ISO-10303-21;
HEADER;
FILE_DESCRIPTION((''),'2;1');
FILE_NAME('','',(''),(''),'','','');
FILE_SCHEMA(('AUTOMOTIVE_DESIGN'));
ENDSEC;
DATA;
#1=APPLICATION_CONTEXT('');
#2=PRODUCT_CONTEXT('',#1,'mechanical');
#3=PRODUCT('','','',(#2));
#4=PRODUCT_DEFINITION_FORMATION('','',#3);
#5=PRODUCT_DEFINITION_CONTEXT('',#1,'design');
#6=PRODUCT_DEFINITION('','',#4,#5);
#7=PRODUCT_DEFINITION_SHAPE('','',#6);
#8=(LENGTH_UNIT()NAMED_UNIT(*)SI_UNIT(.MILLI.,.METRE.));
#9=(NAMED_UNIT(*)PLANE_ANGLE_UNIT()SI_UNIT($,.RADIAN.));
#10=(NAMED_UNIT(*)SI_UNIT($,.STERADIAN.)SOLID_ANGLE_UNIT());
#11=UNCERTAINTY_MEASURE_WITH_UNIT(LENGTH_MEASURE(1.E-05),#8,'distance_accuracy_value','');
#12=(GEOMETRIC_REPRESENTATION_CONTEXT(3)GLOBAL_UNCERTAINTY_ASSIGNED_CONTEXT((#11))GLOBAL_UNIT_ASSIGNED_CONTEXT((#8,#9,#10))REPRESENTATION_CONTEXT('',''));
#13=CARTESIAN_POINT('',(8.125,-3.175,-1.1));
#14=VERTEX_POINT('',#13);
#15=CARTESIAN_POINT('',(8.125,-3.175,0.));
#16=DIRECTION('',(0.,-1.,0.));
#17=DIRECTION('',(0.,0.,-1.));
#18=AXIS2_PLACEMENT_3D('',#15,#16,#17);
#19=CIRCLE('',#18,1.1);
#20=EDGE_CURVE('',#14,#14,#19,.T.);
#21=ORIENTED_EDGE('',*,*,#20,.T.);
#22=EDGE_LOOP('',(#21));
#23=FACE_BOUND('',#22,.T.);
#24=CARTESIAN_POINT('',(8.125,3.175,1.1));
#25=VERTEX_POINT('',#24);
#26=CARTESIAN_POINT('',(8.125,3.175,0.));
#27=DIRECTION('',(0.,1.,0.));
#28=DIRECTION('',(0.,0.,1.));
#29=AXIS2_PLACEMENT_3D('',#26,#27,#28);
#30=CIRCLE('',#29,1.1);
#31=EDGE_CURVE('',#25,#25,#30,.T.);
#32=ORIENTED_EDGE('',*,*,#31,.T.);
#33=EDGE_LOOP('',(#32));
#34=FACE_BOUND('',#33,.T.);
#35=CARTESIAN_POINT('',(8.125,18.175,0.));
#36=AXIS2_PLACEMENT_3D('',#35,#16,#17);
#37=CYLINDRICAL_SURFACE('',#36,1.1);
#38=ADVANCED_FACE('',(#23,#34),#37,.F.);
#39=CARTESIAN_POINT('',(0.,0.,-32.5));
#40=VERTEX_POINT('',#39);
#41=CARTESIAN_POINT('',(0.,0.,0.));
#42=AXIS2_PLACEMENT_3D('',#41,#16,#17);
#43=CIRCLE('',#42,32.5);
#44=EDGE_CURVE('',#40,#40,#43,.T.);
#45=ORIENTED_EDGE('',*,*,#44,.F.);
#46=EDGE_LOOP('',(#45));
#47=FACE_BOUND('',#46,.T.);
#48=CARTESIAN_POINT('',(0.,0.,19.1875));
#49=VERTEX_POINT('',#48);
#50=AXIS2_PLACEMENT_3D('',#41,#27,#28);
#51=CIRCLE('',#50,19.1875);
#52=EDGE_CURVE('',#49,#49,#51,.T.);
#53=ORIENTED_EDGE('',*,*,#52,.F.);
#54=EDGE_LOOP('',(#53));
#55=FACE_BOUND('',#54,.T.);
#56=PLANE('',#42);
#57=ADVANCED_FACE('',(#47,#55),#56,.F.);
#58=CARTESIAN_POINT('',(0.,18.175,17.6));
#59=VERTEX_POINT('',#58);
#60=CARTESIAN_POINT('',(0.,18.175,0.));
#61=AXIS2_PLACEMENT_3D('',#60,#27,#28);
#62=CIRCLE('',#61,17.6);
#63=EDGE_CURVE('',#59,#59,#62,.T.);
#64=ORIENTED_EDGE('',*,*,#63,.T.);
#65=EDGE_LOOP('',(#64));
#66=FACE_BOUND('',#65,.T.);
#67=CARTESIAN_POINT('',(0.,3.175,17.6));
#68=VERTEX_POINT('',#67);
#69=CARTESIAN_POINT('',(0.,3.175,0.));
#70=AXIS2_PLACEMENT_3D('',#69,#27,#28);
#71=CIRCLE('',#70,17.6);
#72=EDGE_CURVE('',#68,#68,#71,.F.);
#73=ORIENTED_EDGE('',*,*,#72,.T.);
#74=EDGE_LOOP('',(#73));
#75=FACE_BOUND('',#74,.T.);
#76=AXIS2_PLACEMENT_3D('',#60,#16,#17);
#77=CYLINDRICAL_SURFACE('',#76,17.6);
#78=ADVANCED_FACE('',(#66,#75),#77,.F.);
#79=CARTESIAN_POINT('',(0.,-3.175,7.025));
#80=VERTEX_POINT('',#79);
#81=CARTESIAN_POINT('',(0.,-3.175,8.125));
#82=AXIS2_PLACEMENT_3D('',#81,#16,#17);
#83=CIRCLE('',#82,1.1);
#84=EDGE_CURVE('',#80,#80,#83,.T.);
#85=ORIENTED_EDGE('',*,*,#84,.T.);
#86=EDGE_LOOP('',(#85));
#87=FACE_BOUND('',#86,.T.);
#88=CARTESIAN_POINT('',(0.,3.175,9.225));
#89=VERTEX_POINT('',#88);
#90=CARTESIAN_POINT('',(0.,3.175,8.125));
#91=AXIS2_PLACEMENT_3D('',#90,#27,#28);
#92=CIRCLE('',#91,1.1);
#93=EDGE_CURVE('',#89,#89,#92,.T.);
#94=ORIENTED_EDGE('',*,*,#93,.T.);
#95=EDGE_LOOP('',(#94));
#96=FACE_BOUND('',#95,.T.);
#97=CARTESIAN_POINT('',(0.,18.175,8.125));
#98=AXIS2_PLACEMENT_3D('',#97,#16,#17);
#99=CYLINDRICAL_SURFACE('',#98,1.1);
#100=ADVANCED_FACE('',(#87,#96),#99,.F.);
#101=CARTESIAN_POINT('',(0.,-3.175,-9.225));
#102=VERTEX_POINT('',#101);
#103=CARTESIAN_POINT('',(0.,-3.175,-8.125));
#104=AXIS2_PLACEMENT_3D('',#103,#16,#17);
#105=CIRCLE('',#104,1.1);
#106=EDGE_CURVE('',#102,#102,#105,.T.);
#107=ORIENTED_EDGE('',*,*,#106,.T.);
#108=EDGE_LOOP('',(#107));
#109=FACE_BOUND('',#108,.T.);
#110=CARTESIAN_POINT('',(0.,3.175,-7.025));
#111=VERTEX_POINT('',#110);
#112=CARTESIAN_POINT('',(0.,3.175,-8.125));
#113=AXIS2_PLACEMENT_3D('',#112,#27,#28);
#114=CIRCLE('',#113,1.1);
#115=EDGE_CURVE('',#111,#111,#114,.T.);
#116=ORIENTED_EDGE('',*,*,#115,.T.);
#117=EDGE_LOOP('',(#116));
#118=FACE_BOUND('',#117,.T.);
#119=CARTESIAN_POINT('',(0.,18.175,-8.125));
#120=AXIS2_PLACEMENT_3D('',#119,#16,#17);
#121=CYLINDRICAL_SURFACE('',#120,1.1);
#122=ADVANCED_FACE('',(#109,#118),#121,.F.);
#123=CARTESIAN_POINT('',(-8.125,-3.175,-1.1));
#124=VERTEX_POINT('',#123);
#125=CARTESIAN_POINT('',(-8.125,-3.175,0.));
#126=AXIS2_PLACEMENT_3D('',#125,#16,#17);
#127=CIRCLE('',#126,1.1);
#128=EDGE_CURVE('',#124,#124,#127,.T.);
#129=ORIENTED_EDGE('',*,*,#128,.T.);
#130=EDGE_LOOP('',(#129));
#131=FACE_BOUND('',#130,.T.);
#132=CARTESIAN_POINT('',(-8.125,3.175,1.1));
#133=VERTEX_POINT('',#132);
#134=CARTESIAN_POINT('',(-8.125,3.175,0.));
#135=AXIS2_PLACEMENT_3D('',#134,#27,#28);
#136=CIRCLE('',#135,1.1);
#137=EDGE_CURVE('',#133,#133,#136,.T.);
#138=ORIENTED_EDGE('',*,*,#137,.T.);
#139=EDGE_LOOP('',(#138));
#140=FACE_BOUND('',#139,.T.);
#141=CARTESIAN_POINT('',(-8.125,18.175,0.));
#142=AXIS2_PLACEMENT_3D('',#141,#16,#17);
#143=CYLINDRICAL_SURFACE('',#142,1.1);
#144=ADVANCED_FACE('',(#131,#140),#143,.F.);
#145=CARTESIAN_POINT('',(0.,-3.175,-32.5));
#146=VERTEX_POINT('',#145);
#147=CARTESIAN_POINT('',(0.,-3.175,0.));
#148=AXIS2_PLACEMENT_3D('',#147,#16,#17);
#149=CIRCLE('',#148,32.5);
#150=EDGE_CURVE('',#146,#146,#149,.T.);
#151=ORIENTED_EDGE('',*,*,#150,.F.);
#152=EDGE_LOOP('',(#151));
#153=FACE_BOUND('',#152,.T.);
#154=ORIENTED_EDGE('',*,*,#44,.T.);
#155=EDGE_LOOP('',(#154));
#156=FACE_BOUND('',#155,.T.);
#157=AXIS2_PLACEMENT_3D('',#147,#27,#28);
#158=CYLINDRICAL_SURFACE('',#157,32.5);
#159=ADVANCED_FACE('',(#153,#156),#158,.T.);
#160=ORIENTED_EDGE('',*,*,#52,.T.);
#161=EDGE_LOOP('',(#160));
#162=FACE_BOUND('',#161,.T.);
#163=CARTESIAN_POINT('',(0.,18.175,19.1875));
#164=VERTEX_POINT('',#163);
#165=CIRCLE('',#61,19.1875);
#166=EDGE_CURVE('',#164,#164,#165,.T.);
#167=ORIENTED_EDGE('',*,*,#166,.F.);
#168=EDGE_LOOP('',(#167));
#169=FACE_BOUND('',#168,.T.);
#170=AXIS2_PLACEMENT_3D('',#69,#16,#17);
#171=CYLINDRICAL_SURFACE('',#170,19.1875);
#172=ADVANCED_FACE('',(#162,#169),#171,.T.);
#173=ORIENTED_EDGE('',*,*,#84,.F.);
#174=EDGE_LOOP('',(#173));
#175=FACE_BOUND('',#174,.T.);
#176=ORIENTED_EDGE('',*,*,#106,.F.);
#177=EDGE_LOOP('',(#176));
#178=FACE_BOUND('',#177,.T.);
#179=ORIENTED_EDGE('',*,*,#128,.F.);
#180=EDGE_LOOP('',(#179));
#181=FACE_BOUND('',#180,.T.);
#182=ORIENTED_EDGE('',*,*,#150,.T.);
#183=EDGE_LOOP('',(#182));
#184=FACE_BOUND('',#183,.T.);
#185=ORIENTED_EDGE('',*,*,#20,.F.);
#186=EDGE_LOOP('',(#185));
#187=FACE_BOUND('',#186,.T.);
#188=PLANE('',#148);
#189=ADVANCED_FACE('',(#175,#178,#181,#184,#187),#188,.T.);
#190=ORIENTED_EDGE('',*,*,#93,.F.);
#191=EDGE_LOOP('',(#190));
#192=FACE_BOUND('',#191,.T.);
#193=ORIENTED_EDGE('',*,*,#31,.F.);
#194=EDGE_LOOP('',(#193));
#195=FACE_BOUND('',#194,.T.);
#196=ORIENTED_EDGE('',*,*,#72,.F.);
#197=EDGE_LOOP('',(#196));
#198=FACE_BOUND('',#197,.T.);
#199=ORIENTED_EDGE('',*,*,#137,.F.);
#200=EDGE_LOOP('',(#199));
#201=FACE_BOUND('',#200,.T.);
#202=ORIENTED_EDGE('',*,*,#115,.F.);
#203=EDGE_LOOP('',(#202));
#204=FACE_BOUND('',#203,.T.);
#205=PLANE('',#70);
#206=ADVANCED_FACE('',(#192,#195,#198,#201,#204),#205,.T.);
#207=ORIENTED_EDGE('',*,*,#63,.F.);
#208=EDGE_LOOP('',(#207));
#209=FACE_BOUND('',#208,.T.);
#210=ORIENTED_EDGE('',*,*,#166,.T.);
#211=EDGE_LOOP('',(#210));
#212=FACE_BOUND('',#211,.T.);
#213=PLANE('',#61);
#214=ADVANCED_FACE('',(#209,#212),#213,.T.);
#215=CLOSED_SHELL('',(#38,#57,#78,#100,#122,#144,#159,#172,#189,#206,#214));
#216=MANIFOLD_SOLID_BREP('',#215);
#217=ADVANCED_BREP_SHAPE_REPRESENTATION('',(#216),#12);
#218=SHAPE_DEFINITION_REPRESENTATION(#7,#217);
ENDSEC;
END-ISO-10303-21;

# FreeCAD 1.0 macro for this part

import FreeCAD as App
import Part
import Sketcher
from FreeCAD import Vector

doc = App.newDocument("Part")
params = doc.addObject("Spreadsheet::Sheet", "Params")
for row, (alias, value) in enumerate([
    ("pad1_length", "3.175 mm"),
    ("sketch2_diameter", "35.2 mm"),
    ("pad2_length", "15 mm"),
    ("sketch3_diameter", "2.2 mm"),
    ("sketch4_diameter", "65 mm"),
    ("sketch4_diameter2", "2.2 mm"),
    ("pad3_length", "3.175 mm"),
], start=1):
    params.set(f"A{row}", alias)
    params.set(f"B{row}", "=" + value)
    params.setAlias(f"B{row}", alias)

body = doc.addObject("PartDesign::Body", "Body")

sketch1 = body.newObject("Sketcher::SketchObject", "Sketch")
sketch1.AttachmentSupport = (doc.getObject("XZ_Plane"), [""])
sketch1.MapMode = "FlatFace"
sketch1.addGeometry(Part.Circle(Vector(0, 0, 0), Vector(0, 0, 1), 19), False)
sketch1.addConstraint([
    Sketcher.Constraint("Coincident", 0, 3, -1, 1),
    Sketcher.Constraint("Diameter", 0, 38.375),
])
pad1 = body.newObject("PartDesign::Pad", "Pad")
pad1.Profile = sketch1
pad1.setExpression("Length", "Params.pad1_length")
pad1.Reversed = True

sketch2 = body.newObject("Sketcher::SketchObject", "Sketch001")
sketch2.AttachmentSupport = (doc.getObject("XZ_Plane"), [""])
sketch2.MapMode = "FlatFace"
sketch2.AttachmentOffset = App.Placement(Vector(0, 0, -3.175), App.Rotation())
sketch2.addGeometry([
    Part.Circle(Vector(0, 0, 0), Vector(0, 0, 1), 19),
    Part.Circle(Vector(0, 0, 0), Vector(0, 0, 1), 18),
], False)
sketch2.addConstraint([
    Sketcher.Constraint("Coincident", 0, 3, -1, 1),
    Sketcher.Constraint("Coincident", 1, 3, -1, 1),
    Sketcher.Constraint("Diameter", 1, 35.2),
    Sketcher.Constraint("Diameter", 0, 38.375),
])
sketch2.setExpression("Constraints[2]", "Params.sketch2_diameter")
pad2 = body.newObject("PartDesign::Pad", "Pad001")
pad2.Profile = sketch2
pad2.setExpression("Length", "Params.pad2_length")
pad2.Reversed = True

sketch3 = body.newObject("Sketcher::SketchObject", "Sketch002")
sketch3.AttachmentSupport = (doc.getObject("XZ_Plane"), [""])
sketch3.MapMode = "FlatFace"
sketch3.addGeometry([
    Part.Circle(Vector(0, 8.1, 0), Vector(0, 0, 1), 1.1),
    Part.Circle(Vector(8.1, 0, 0), Vector(0, 0, 1), 1.1),
    Part.Circle(Vector(-8.1, 0, 0), Vector(0, 0, 1), 1.1),
    Part.Circle(Vector(0, -8.1, 0), Vector(0, 0, 1), 1.1),
], False)
sketch3.addConstraint([
    Sketcher.Constraint("Equal", 0, 1),
    Sketcher.Constraint("Equal", 1, 2),
    Sketcher.Constraint("Equal", 2, 3),
    Sketcher.Constraint("Symmetric", 1, 3, 2, 3, -1, 1),
    Sketcher.Constraint("Symmetric", 0, 3, 3, 3, -1, 1),
    Sketcher.Constraint("PointOnObject", 0, 3, -2),
    Sketcher.Constraint("PointOnObject", 1, 3, -1),
    Sketcher.Constraint("Diameter", 0, 2.2),
    Sketcher.Constraint("DistanceX", 2, 3, 1, 3, 16.25),
    Sketcher.Constraint("DistanceY", 3, 3, 0, 3, 16.25),
])
sketch3.setExpression("Constraints[7]", "Params.sketch3_diameter")
pocket1 = body.newObject("PartDesign::Pocket", "Pocket")
pocket1.Profile = sketch3
pocket1.Type = "ThroughAll"

sketch4 = body.newObject("Sketcher::SketchObject", "Sketch003")
sketch4.AttachmentSupport = (doc.getObject("XZ_Plane"), [""])
sketch4.MapMode = "FlatFace"
sketch4.AttachmentOffset = App.Placement(Vector(0, 0, 3.175), App.Rotation())
sketch4.addGeometry([
    Part.Circle(Vector(0, 0, 0), Vector(0, 0, 1), 32.5),
    Part.Circle(Vector(0, 8.1, 0), Vector(0, 0, 1), 1.1),
    Part.Circle(Vector(-8.1, 0, 0), Vector(0, 0, 1), 1.1),
    Part.Circle(Vector(8.1, 0, 0), Vector(0, 0, 1), 1.1),
    Part.Circle(Vector(0, -8.1, 0), Vector(0, 0, 1), 1.1),
], False)
sketch4.addConstraint([
    Sketcher.Constraint("Coincident", 0, 3, -1, 1),
    Sketcher.Constraint("Equal", 1, 2),
    Sketcher.Constraint("Equal", 2, 3),
    Sketcher.Constraint("Equal", 3, 4),
    Sketcher.Constraint("Symmetric", 2, 3, 3, 3, -1, 1),
    Sketcher.Constraint("Symmetric", 1, 3, 4, 3, -1, 1),
    Sketcher.Constraint("PointOnObject", 1, 3, -2),
    Sketcher.Constraint("PointOnObject", 2, 3, -1),
    Sketcher.Constraint("Diameter", 0, 65.0),
    Sketcher.Constraint("Diameter", 1, 2.2),
    Sketcher.Constraint("DistanceX", 2, 3, 3, 3, 16.25),
    Sketcher.Constraint("DistanceY", 4, 3, 1, 3, 16.25),
])
sketch4.setExpression("Constraints[8]", "Params.sketch4_diameter")
sketch4.setExpression("Constraints[9]", "Params.sketch4_diameter2")
pad3 = body.newObject("PartDesign::Pad", "Pad002")
pad3.Profile = sketch4
pad3.setExpression("Length", "Params.pad3_length")
pad3.Reversed = True

doc.recompute()
